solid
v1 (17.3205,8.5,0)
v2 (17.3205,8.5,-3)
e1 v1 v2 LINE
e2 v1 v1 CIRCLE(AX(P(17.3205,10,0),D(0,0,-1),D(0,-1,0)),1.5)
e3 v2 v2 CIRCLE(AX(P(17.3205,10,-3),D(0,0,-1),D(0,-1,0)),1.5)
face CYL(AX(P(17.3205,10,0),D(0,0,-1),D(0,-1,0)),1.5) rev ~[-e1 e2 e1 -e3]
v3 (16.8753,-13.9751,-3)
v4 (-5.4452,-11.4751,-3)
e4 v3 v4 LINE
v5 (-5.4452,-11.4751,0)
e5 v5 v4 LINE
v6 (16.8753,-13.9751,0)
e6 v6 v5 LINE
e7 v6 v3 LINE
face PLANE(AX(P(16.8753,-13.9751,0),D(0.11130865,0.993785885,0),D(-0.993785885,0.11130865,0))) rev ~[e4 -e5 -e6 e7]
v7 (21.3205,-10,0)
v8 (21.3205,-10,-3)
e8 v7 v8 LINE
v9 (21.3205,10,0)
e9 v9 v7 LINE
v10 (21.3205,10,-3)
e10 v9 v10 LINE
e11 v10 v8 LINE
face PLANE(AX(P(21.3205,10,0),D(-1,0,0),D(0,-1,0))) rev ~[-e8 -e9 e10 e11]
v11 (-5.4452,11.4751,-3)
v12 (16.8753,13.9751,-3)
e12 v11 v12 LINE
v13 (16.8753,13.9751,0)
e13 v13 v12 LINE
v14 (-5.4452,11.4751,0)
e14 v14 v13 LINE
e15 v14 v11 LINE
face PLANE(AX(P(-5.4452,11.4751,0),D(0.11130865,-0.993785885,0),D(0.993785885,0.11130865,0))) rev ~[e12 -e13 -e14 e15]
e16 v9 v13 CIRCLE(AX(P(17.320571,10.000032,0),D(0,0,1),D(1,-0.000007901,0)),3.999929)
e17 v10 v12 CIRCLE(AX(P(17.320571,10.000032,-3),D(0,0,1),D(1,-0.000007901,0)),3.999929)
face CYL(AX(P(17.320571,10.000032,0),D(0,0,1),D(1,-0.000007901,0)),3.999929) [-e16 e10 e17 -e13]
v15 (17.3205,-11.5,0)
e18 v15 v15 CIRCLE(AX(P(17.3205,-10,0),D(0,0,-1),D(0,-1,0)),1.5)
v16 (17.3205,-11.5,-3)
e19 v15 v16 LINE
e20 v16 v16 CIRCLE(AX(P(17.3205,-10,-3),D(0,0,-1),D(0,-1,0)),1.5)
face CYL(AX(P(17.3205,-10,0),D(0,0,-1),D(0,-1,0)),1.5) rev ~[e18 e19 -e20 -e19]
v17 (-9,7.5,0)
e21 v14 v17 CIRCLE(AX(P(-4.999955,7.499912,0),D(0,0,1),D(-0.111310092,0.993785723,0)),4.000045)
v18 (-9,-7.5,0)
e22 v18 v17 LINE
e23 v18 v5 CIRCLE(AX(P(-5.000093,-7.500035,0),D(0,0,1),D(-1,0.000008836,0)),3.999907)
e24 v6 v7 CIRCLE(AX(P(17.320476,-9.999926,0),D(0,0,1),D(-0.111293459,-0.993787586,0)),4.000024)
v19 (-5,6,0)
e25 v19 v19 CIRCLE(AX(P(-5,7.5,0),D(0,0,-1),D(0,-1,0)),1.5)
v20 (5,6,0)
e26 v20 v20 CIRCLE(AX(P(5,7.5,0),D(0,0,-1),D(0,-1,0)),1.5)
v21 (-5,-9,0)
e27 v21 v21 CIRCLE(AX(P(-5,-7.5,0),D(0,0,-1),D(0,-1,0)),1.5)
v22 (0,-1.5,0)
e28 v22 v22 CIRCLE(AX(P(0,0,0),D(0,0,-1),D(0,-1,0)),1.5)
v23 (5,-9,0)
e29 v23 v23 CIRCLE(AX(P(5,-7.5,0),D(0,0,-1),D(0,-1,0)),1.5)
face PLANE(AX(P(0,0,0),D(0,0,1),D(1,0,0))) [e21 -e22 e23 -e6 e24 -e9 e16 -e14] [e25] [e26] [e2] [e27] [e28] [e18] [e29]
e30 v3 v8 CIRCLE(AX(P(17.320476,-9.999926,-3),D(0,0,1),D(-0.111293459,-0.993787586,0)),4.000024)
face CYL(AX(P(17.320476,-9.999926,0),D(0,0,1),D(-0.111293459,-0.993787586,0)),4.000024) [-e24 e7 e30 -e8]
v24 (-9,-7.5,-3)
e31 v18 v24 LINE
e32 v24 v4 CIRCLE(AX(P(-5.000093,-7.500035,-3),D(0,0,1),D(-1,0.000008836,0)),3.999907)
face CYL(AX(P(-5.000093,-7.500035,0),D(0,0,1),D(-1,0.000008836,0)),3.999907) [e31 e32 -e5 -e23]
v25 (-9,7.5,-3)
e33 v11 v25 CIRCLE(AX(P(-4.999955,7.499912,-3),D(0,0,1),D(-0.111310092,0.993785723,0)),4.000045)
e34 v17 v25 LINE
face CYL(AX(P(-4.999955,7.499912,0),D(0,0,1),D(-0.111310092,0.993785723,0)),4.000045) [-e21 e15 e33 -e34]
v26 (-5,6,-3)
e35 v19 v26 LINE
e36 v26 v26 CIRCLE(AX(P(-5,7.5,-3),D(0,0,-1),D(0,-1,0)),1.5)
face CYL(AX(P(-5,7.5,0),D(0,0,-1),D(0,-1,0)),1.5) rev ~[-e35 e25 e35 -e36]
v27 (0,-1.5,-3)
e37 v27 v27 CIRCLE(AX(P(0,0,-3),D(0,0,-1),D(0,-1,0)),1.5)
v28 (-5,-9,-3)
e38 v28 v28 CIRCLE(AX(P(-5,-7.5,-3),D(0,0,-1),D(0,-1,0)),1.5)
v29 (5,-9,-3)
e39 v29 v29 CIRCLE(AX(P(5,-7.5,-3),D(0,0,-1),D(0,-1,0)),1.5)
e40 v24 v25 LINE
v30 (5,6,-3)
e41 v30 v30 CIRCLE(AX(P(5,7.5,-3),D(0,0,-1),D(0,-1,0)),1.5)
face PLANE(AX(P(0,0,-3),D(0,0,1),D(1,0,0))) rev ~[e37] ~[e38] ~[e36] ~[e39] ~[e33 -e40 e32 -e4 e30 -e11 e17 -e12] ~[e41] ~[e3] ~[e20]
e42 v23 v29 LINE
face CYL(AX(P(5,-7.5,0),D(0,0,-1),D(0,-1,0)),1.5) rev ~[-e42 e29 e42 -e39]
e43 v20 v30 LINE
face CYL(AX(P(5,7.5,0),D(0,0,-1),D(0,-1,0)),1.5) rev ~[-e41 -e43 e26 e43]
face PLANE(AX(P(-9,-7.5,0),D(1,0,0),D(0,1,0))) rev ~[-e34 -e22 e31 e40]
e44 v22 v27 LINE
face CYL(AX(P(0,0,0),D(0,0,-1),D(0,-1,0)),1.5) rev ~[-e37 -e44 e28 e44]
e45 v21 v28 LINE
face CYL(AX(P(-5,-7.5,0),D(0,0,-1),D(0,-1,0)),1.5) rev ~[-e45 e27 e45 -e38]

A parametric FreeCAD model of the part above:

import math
import FreeCAD as App
import Part
import Sketcher
Q = App.Units.Quantity

doc = App.newDocument("Part")
body = doc.addObject("PartDesign::Body", "Body")

# Sketch on XY plane
sketch1 = body.newObject("Sketcher::SketchObject", "Sketch")
sketch1.AttachmentSupport = (doc.getObject("XY_Plane"), [""])
sketch1.MapMode = "FlatFace"
sketch1.addGeometry([
    Part.LineSegment(App.Vector(16.8753, 13.9751, 0), App.Vector(-5.4452, 11.4751, 0)),  # 0
    Part.ArcOfCircle(Part.Circle(App.Vector(-5, 7.5, 0), App.Vector(0, 0, 1), 3.999953), math.radians(96.390336), math.radians(180)),  # 1
    Part.LineSegment(App.Vector(-9, 7.5, 0), App.Vector(-9, -7.5, 0)),  # 2
    Part.ArcOfCircle(Part.Circle(App.Vector(-5, -7.5, 0), App.Vector(0, 0, 1), 4), math.radians(180), math.radians(263.609664)),  # 3
    Part.LineSegment(App.Vector(-5.4452, -11.4751, 0), App.Vector(16.8753, -13.9751, 0)),  # 4
    Part.ArcOfCircle(Part.Circle(App.Vector(17.3205, -10, 0), App.Vector(0, 0, 1), 3.999953), math.radians(-96.390336), math.radians(0)),  # 5
    Part.LineSegment(App.Vector(21.3205, -10, 0), App.Vector(21.3205, 10, 0)),  # 6
    Part.ArcOfCircle(Part.Circle(App.Vector(17.3205, 10, 0), App.Vector(0, 0, 1), 4), math.radians(0), math.radians(96.390336)),  # 7
], False)
sketch1.addConstraint([
    Sketcher.Constraint("Tangent", 0, 2, 1, 1),
    Sketcher.Constraint("Tangent", 1, 2, 2, 1),
    Sketcher.Constraint("Tangent", 2, 2, 3, 1),
    Sketcher.Constraint("Tangent", 3, 2, 4, 1),
    Sketcher.Constraint("Tangent", 4, 2, 5, 1),
    Sketcher.Constraint("Tangent", 5, 2, 6, 1),
    Sketcher.Constraint("Tangent", 6, 2, 7, 1),
    Sketcher.Constraint("Tangent", 7, 2, 0, 1),
    Sketcher.Constraint("Vertical", 2),
    Sketcher.Constraint("Vertical", 6),
    Sketcher.Constraint("Equal", 1, 3),
    Sketcher.Constraint("Equal", 3, 5),
    Sketcher.Constraint("Equal", 5, 7),
    Sketcher.Constraint("Symmetric", 0, 2, 3, 2, -1),
    Sketcher.Constraint("Radius", 1, 4.0),
    Sketcher.Constraint("DistanceY", 2, 2, 2, 1, 15.0),
    Sketcher.Constraint("DistanceY", 6, 1, 6, 2, 20.0),
    Sketcher.Constraint("DistanceX", 1, 3, -1, 1, 5.0),
    Sketcher.Constraint("Angle", 0, Q("-173.6092 deg")),
])
pad1 = body.newObject("PartDesign::Pad", "Pad")
pad1.Profile = sketch1
pad1.Length = 3
pad1.Reversed = True

# Sketch on XY plane
sketch2 = body.newObject("Sketcher::SketchObject", "Sketch001")
sketch2.AttachmentSupport = (doc.getObject("XY_Plane"), [""])
sketch2.MapMode = "FlatFace"
sketch2.addGeometry([
    Part.Circle(App.Vector(-5, 7.5, 0), App.Vector(0, 0, 1), 1.5),  # 0
    Part.Circle(App.Vector(5, 7.5, 0), App.Vector(0, 0, 1), 1.5),  # 1
    Part.Circle(App.Vector(17.3205, 10, 0), App.Vector(0, 0, 1), 1.5),  # 2
    Part.Circle(App.Vector(17.3205, -10, 0), App.Vector(0, 0, 1), 1.5),  # 3
    Part.Circle(App.Vector(-5, -7.5, 0), App.Vector(0, 0, 1), 1.5),  # 4
    Part.Circle(App.Vector(5, -7.5, 0), App.Vector(0, 0, 1), 1.5),  # 5
], False)
sketch2.addConstraint([
    Sketcher.Constraint("Equal", 0, 1),
    Sketcher.Constraint("Equal", 1, 2),
    Sketcher.Constraint("Equal", 2, 3),
    Sketcher.Constraint("Equal", 3, 4),
    Sketcher.Constraint("Equal", 4, 5),
    Sketcher.Constraint("Symmetric", 1, 3, 4, 3, -1, 1),
    Sketcher.Constraint("Symmetric", 0, 3, 5, 3, -1, 1),
    Sketcher.Constraint("Symmetric", 0, 3, 1, 3, -2),
    Sketcher.Constraint("Symmetric", 2, 3, 3, 3, -1),
    Sketcher.Constraint("Diameter", 0, 3.0),
    Sketcher.Constraint("DistanceX", 0, 3, -1, 1, 5.0),
    Sketcher.Constraint("DistanceY", -1, 1, 2, 3, 10.0),
    Sketcher.Constraint("DistanceY", 4, 3, 0, 3, 15.0),
    Sketcher.Constraint("DistanceX", -1, 1, 2, 3, 17.3205),
])
doc.recompute()
hole = body.newObject("PartDesign::Hole", "Hole")
hole.Profile = sketch2
hole.ThreadType = "None"
hole.Diameter = 3
hole.DepthType = "Dimension"
hole.Depth = 8
hole.DrillPoint = "Angled"
hole.DrillPointAngle = 118

# Sketch on XY plane
sketch3 = body.newObject("Sketcher::SketchObject", "Sketch002")
sketch3.AttachmentSupport = (doc.getObject("XY_Plane"), [""])
sketch3.MapMode = "FlatFace"
sketch3.addGeometry(Part.Circle(App.Vector(0, 0, 0), App.Vector(0, 0, 1), 1.5), False)
sketch3.addConstraint([
    Sketcher.Constraint("Coincident", 0, 3, -1, 1),
    Sketcher.Constraint("Diameter", 0, 3.0),
])
doc.recompute()
hole2 = body.newObject("PartDesign::Hole", "Hole001")
hole2.Profile = sketch3
hole2.ThreadType = "None"
hole2.Diameter = 3
hole2.DepthType = "Dimension"
hole2.Depth = 8
hole2.DrillPoint = "Angled"
hole2.DrillPointAngle = 118

doc.recompute()
